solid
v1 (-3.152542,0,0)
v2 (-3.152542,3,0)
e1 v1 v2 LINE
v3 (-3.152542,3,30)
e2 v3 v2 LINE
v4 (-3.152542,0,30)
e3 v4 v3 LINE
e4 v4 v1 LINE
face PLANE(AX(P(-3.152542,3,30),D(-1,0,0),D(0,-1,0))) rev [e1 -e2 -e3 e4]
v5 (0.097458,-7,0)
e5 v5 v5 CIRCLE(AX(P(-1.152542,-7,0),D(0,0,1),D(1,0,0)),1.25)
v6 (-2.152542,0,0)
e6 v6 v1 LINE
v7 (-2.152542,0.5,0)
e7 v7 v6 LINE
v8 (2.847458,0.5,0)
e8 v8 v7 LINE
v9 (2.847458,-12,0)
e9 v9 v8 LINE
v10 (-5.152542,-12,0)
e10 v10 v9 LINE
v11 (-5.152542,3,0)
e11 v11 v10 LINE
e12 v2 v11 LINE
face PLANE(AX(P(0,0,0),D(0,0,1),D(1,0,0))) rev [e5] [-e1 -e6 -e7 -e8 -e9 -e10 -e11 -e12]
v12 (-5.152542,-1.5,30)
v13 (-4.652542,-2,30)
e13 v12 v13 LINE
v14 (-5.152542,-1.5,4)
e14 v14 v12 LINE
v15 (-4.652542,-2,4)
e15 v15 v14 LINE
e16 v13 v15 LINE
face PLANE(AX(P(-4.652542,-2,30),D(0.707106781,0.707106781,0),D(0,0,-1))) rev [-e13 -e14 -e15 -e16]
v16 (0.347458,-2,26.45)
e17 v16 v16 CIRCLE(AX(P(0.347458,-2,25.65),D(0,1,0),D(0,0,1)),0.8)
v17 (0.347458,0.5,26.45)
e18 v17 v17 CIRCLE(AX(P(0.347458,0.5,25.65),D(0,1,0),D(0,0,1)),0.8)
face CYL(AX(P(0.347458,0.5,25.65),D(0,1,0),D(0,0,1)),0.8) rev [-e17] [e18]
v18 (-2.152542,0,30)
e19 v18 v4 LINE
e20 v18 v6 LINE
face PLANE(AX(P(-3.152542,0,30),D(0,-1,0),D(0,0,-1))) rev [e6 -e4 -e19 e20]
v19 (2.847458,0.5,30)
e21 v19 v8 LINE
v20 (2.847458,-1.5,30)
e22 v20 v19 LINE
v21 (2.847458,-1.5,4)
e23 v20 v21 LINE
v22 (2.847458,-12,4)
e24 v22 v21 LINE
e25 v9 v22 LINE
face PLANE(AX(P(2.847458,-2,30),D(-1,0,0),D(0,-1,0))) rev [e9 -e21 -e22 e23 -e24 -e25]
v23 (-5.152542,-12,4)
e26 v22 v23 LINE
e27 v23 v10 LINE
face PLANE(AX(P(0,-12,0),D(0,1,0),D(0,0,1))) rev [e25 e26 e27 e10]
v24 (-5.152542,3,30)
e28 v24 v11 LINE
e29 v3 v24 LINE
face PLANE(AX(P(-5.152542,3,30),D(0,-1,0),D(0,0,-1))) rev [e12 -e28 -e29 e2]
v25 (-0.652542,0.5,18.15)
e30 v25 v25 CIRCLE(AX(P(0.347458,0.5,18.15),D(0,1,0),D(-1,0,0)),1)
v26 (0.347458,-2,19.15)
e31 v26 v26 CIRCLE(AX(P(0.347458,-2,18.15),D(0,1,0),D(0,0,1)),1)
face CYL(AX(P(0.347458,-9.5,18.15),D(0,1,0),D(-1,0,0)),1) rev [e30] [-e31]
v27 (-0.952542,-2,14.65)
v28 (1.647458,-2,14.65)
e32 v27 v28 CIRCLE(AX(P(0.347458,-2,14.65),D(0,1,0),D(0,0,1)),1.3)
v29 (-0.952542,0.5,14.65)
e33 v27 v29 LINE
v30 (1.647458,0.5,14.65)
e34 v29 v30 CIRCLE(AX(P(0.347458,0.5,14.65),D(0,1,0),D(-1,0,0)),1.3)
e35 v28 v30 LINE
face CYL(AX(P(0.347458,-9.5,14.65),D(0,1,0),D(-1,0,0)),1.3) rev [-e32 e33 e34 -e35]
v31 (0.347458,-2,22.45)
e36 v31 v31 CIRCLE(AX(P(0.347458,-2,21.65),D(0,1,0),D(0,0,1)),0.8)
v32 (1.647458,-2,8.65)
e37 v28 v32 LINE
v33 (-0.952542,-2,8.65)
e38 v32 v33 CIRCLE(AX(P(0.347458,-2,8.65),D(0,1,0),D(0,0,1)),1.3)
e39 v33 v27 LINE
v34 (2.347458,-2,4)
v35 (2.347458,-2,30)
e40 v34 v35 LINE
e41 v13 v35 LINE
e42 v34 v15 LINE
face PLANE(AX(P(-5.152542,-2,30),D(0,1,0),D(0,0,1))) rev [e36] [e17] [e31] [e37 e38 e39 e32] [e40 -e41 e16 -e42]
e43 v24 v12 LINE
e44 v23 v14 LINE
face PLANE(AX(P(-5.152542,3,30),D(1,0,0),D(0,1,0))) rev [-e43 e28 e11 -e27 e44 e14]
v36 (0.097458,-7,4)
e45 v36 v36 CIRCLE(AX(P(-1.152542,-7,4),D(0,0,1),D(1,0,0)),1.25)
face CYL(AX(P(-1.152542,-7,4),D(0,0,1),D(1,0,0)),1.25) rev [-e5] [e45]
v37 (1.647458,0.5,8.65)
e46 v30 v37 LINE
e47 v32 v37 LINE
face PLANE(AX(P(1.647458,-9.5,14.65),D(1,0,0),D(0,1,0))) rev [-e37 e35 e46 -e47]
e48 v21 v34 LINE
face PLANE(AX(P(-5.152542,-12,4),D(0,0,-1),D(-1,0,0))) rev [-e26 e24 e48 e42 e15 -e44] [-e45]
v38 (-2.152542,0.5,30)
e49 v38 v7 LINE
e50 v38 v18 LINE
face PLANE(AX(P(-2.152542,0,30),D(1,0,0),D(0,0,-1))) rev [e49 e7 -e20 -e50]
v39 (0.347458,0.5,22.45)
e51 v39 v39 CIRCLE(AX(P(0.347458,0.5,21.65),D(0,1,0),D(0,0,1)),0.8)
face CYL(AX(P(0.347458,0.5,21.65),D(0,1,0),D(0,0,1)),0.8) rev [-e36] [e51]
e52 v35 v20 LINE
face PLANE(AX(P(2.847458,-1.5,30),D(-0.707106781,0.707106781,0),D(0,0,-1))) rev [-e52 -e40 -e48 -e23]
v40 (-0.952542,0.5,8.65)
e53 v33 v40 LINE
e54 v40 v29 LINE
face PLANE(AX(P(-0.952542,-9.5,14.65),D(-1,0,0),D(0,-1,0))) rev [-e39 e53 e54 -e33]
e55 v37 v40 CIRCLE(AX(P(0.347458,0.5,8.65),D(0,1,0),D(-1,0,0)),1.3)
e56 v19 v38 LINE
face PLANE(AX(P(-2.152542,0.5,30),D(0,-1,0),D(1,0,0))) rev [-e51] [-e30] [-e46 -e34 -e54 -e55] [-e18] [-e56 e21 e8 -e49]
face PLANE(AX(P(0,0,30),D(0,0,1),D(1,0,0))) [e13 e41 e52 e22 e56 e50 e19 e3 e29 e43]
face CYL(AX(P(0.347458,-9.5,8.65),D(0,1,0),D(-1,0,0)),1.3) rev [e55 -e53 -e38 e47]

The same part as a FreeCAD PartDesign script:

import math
import FreeCAD as App
import Part
import Sketcher
from FreeCAD import Vector


def edges_at(feature, points):
    """Names of the edges that pass closest to the given points."""
    edges = feature.Shape.Edges
    near = lambda p: min(range(len(edges)), key=lambda i: edges[i].distToShape(Part.Vertex(*p))[0])
    return sorted({f"Edge{near(p) + 1}" for p in points})

doc = App.newDocument("Part")
body = doc.addObject("PartDesign::Body", "Body")

# Sketch on XY plane
sketch1 = doc.addObject("Sketcher::SketchObject", "Sketch")
body.addObject(sketch1)
sketch1.AttachmentSupport = (doc.XY_Plane, [""])
sketch1.MapMode = "FlatFace"
sketch1.addGeometry([
    Part.LineSegment(Vector(-3.152542, 3, 0), Vector(-5.152542, 3, 0)),  # 0
    Part.LineSegment(Vector(-5.152542, 3, 0), Vector(-5.152542, -2, 0)),  # 1
    Part.LineSegment(Vector(-5.152542, -2, 0), Vector(2.847458, -2, 0)),  # 2
    Part.LineSegment(Vector(2.847458, -2, 0), Vector(2.847458, 0.5, 0)),  # 3
    Part.LineSegment(Vector(2.847458, 0.5, 0), Vector(-2.152542, 0.5, 0)),  # 4
    Part.LineSegment(Vector(-2.152542, 0.5, 0), Vector(-2.152542, 0, 0)),  # 5
    Part.LineSegment(Vector(-2.152542, 0, 0), Vector(-3.152542, 0, 0)),  # 6
    Part.LineSegment(Vector(-3.152542, 0, 0), Vector(-3.152542, 3, 0)),  # 7
], False)
sketch1.addConstraint([
    Sketcher.Constraint("Coincident", 0, 2, 1, 1),
    Sketcher.Constraint("Coincident", 1, 2, 2, 1),
    Sketcher.Constraint("Coincident", 2, 2, 3, 1),
    Sketcher.Constraint("Coincident", 3, 2, 4, 1),
    Sketcher.Constraint("Coincident", 4, 2, 5, 1),
    Sketcher.Constraint("Coincident", 5, 2, 6, 1),
    Sketcher.Constraint("Coincident", 6, 2, 7, 1),
    Sketcher.Constraint("Coincident", 7, 2, 0, 1),
    Sketcher.Constraint("Horizontal", 0),
    Sketcher.Constraint("Vertical", 1),
    Sketcher.Constraint("Horizontal", 2),
    Sketcher.Constraint("Vertical", 3),
    Sketcher.Constraint("Horizontal", 4),
    Sketcher.Constraint("Vertical", 5),
    Sketcher.Constraint("Horizontal", 6),
    Sketcher.Constraint("Vertical", 7),
    Sketcher.Constraint("PointOnObject", 5, 2, -1),
    Sketcher.Constraint("Equal", 4, 1),
    Sketcher.Constraint("DistanceX", 0, 2, 0, 1, 2.0),
    Sketcher.Constraint("DistanceX", 2, 1, 2, 2, 8.0),
    Sketcher.Constraint("DistanceX", 4, 2, 4, 1, 5.0),
    Sketcher.Constraint("DistanceY", 7, 1, 7, 2, 3.0),
    Sketcher.Constraint("DistanceY", 3, 1, 3, 2, 2.5),
    Sketcher.Constraint("DistanceX", 0, 2, -1, 1, 5.152542),
])
pad1 = doc.addObject("PartDesign::Pad", "Pad")
body.addObject(pad1)
pad1.Profile = sketch1
pad1.Length = 30

# Sketch on XZ plane
sketch2 = doc.addObject("Sketcher::SketchObject", "Sketch001")
body.addObject(sketch2)
sketch2.AttachmentSupport = (doc.XZ_Plane, [""])
sketch2.MapMode = "FlatFace"
sketch2.AttachmentOffset = App.Placement(Vector(0, 0, 2), App.Rotation())
sketch2.addGeometry([
    Part.LineSegment(Vector(-5.152542, 4, 0), Vector(-5.152542, 0, 0)),
    Part.LineSegment(Vector(-5.152542, 0, 0), Vector(2.847458, 0, 0)),
    Part.LineSegment(Vector(2.847458, 0, 0), Vector(2.847458, 4, 0)),
    Part.LineSegment(Vector(2.847458, 4, 0), Vector(-5.152542, 4, 0)),
], False)
sketch2.addConstraint([
    Sketcher.Constraint("Coincident", 0, 2, 1, 1),
    Sketcher.Constraint("Coincident", 1, 2, 2, 1),
    Sketcher.Constraint("Coincident", 2, 2, 3, 1),
    Sketcher.Constraint("Coincident", 3, 2, 0, 1),
    Sketcher.Constraint("Vertical", 0),
    Sketcher.Constraint("Horizontal", 1),
    Sketcher.Constraint("Vertical", 2),
    Sketcher.Constraint("Horizontal", 3),
    Sketcher.Constraint("PointOnObject", 0, 2, -1),
    Sketcher.Constraint("DistanceX", 1, 1, 1, 2, 8.0),
    Sketcher.Constraint("DistanceY", 0, 2, 0, 1, 4.0),
    Sketcher.Constraint("DistanceX", 0, 2, -1, 1, 5.152542),
])
pad2 = doc.addObject("PartDesign::Pad", "Pad001")
body.addObject(pad2)
pad2.Profile = sketch2
pad2.Length = 10

# Sketch on XZ plane
sketch3 = doc.addObject("Sketcher::SketchObject", "Sketch002")
body.addObject(sketch3)
sketch3.AttachmentSupport = (doc.XZ_Plane, [""])
sketch3.MapMode = "FlatFace"
sketch3.AttachmentOffset = App.Placement(Vector(0, 0, -0.5), App.Rotation())
sketch3.addGeometry([
    Part.Circle(Vector(0.347458, 18.15, 0), Vector(0, 0, 1), 1),  # 0
    Part.LineSegment(Vector(-0.952542, 8.65, 0), Vector(-0.952542, 14.65, 0)),  # 1
    Part.ArcOfCircle(Part.Circle(Vector(0.347458, 14.65, 0), Vector(0, 0, 1), 1.3), math.radians(0), math.radians(180)),  # 2
    Part.LineSegment(Vector(1.647458, 14.65, 0), Vector(1.647458, 8.65, 0)),  # 3
    Part.ArcOfCircle(Part.Circle(Vector(0.347458, 8.65, 0), Vector(0, 0, 1), 1.3), math.radians(180), math.radians(360)),  # 4
], False)
sketch3.addConstraint([
    Sketcher.Constraint("Tangent", 1, 2, 2, 2),
    Sketcher.Constraint("Tangent", 2, 1, 3, 1),
    Sketcher.Constraint("Tangent", 3, 2, 4, 2),
    Sketcher.Constraint("Tangent", 4, 1, 1, 1),
    Sketcher.Constraint("Vertical", 1),
    Sketcher.Constraint("Vertical", 3),
    Sketcher.Constraint("Vertical", 0, 3, 2, 3),
    Sketcher.Constraint("Diameter", 0, 2.0),
    Sketcher.Constraint("Radius", 2, 1.3),
    Sketcher.Constraint("DistanceY", 1, 1, 1, 2, 6.0),
    Sketcher.Constraint("DistanceY", 2, 3, 0, 3, 3.5),
    Sketcher.Constraint("DistanceY", -1, 1, 0, 3, 18.15),
    Sketcher.Constraint("DistanceX", -1, 1, 0, 3, 0.347458),
])
pocket1 = doc.addObject("PartDesign::Pocket", "Pocket")
body.addObject(pocket1)
pocket1.Profile = sketch3
pocket1.Length = 10
pocket1.Reversed = True

# Sketch on XZ plane
sketch4 = doc.addObject("Sketcher::SketchObject", "Sketch003")
body.addObject(sketch4)
sketch4.AttachmentSupport = (doc.XZ_Plane, [""])
sketch4.MapMode = "FlatFace"
sketch4.AttachmentOffset = App.Placement(Vector(0, 0, -0.5), App.Rotation())
sketch4.addGeometry([
    Part.Circle(Vector(0.347458, 21.65, 0), Vector(0, 0, 1), 0.8),
    Part.Circle(Vector(0.347458, 25.65, 0), Vector(0, 0, 1), 0.8),
], False)
sketch4.addConstraint([
    Sketcher.Constraint("Equal", 0, 1),
    Sketcher.Constraint("Vertical", 0, 3, 1, 3),
    Sketcher.Constraint("Diameter", 0, 1.6),
    Sketcher.Constraint("DistanceY", 0, 3, 1, 3, 4.0),
    Sketcher.Constraint("DistanceY", -1, 1, 0, 3, 21.65),
    Sketcher.Constraint("DistanceX", -1, 1, 0, 3, 0.347458),
])
doc.recompute()
hole = doc.addObject("PartDesign::Hole", "Hole")
body.addObject(hole)
hole.Profile = sketch4
hole.ThreadType = "None"
hole.Diameter = 1.6
hole.DepthType = "Dimension"
hole.Depth = 5.2
hole.DrillPoint = "Angled"
hole.DrillPointAngle = 118
hole.Reversed = True

# Sketch on XY plane
sketch5 = doc.addObject("Sketcher::SketchObject", "Sketch004")
body.addObject(sketch5)
sketch5.AttachmentSupport = (doc.XY_Plane, [""])
sketch5.MapMode = "FlatFace"
sketch5.AttachmentOffset = App.Placement(Vector(0, 0, 4), App.Rotation())
sketch5.addGeometry(Part.Circle(Vector(-1.152542, -7, 0), Vector(0, 0, 1), 1.25), False)
sketch5.addConstraint([
    Sketcher.Constraint("Diameter", 0, 2.5),
    Sketcher.Constraint("DistanceY", 0, 3, -1, 1, 7.0),
    Sketcher.Constraint("DistanceX", 0, 3, -1, 1, 1.152542),
])
doc.recompute()
hole2 = doc.addObject("PartDesign::Hole", "Hole001")
body.addObject(hole2)
hole2.Profile = sketch5
hole2.ThreadType = "None"
hole2.Diameter = 2.5
hole2.DepthType = "Dimension"
hole2.Depth = 7.5
hole2.DrillPoint = "Angled"
hole2.DrillPointAngle = 118
doc.recompute()

chamfer = doc.addObject("PartDesign::Chamfer", "Chamfer")
body.addObject(chamfer)
chamfer.Base = (hole2, edges_at(hole2, [(2.847, -2, 17), (-5.153, -2, 17)]))
chamfer.Size = 0.5

doc.recompute()
